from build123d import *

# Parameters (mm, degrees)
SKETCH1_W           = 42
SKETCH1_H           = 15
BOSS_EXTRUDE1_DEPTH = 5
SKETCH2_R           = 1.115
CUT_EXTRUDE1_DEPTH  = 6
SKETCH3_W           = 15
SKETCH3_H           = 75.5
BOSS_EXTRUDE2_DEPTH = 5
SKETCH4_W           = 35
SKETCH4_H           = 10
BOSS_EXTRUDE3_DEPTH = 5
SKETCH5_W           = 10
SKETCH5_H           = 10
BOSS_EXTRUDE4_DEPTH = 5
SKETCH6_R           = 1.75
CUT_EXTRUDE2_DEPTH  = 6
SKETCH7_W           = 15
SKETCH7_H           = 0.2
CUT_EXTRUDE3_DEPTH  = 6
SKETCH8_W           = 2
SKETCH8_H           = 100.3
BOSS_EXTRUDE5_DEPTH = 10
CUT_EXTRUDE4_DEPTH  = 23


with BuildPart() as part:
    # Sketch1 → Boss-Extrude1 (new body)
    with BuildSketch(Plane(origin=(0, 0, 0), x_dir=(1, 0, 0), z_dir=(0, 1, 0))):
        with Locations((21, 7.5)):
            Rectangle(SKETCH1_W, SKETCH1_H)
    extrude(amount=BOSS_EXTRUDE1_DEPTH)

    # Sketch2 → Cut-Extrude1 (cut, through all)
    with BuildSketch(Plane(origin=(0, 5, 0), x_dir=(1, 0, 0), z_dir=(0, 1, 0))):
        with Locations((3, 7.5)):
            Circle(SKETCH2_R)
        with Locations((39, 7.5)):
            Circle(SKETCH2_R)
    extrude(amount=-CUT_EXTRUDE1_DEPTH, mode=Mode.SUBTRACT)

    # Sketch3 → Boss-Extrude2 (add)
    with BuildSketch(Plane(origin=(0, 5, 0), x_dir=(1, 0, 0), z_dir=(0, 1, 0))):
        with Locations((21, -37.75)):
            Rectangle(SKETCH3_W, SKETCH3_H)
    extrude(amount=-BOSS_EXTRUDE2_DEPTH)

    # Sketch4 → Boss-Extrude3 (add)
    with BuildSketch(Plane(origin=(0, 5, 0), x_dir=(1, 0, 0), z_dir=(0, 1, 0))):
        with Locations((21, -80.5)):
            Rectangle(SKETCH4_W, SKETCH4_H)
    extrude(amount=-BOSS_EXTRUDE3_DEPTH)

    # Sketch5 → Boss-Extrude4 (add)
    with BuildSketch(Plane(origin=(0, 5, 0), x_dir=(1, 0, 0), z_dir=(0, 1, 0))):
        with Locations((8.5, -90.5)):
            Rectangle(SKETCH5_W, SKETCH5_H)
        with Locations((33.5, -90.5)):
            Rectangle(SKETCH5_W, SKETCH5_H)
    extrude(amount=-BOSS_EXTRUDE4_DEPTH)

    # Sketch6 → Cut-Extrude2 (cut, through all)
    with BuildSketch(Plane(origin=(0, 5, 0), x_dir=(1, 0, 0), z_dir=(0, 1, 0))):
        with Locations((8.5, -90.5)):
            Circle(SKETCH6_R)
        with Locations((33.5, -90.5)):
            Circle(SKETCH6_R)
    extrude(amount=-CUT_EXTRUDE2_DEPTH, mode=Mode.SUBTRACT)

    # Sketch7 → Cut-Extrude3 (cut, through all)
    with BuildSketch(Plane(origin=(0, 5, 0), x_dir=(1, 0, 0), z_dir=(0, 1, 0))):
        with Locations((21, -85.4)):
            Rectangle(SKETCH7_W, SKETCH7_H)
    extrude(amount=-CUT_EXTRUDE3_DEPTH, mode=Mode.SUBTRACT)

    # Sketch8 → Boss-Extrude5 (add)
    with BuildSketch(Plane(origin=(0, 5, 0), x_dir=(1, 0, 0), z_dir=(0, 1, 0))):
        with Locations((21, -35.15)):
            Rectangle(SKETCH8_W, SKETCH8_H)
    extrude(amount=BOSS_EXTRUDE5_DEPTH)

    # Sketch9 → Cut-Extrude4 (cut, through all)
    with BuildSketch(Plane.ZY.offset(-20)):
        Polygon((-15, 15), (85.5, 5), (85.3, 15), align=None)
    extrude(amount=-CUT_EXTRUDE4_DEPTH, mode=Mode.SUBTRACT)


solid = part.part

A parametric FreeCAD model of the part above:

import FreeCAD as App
import Part
import Sketcher
from FreeCAD import Vector
Q = App.Units.Quantity


def add_polygon(sketch, points):
    """Adds a closed chain of lines whose ends are joined by coincident constraints."""
    first, n = sketch.GeometryCount, len(points)
    for a, b in zip(points, points[1:] + points[:1]):
        sketch.addGeometry(Part.LineSegment(App.Vector(*a, 0), App.Vector(*b, 0)), False)
    for i in range(n):
        sketch.addConstraint(Sketcher.Constraint("Coincident", first + i, 2, first + (i + 1) % n, 1))

doc = App.newDocument("Part")
params = doc.addObject("Spreadsheet::Sheet", "Params")
for row, (alias, value) in enumerate([
    ("sketch1_width", "42 mm"),
    ("sketch1_height", "15 mm"),
    ("pad1_length", "5 mm"),
    ("sketch2_diameter", "2.23 mm"),
    ("sketch3_width", "15 mm"),
    ("sketch3_height", "75.5 mm"),
    ("pad2_length", "5 mm"),
    ("sketch4_width", "35 mm"),
    ("sketch4_height", "10 mm"),
    ("pad3_length", "5 mm"),
    ("sketch5_width", "10 mm"),
    ("pad4_length", "5 mm"),
    ("sketch6_diameter", "3.5 mm"),
    ("sketch7_width", "15 mm"),
    ("sketch7_height", "0.2 mm"),
    ("sketch8_width", "2 mm"),
    ("sketch8_height", "100.3 mm"),
    ("pad5_length", "10 mm"),
    ("sketch9_height", "100.3 mm"),
], start=1):
    params.set(f"A{row}", alias)
    params.set(f"B{row}", "=" + value)
    params.setAlias(f"B{row}", alias)

body = doc.addObject("PartDesign::Body", "Body")

sketch1 = doc.addObject("Sketcher::SketchObject", "Sketch")
body.addObject(sketch1)
sketch1.AttachmentSupport = (doc.XZ_Plane, [""])
sketch1.MapMode = "FlatFace"
add_polygon(sketch1, [(0, -15), (0, 0), (42, 0), (42, -15)])
sketch1.addConstraint([
    Sketcher.Constraint("Vertical", 0),
    Sketcher.Constraint("Horizontal", 1),
    Sketcher.Constraint("Vertical", 2),
    Sketcher.Constraint("Horizontal", 3),
    Sketcher.Constraint("Coincident", 0, 2, -1, 1),
    Sketcher.Constraint("DistanceX", 1, 1, 1, 2, Q("42 mm")),
    Sketcher.Constraint("DistanceY", 0, 1, 0, 2, Q("15 mm")),
])
sketch1.setExpression("Constraints[9]", "Params.sketch1_width")
sketch1.setExpression("Constraints[10]", "Params.sketch1_height")
pad1 = doc.addObject("PartDesign::Pad", "Pad")
body.addObject(pad1)
pad1.Profile = sketch1
pad1.setExpression("Length", "Params.pad1_length")
pad1.Reversed = True

sketch2 = doc.addObject("Sketcher::SketchObject", "Sketch001")
body.addObject(sketch2)
sketch2.AttachmentSupport = (doc.XZ_Plane, [""])
sketch2.MapMode = "FlatFace"
sketch2.AttachmentOffset = App.Placement(Vector(0, 0, -5), App.Rotation())
sketch2.addGeometry([
    Part.Circle(Vector(3, -7.5, 0), Vector(0, 0, 1), 1.1),
    Part.Circle(Vector(39, -7.5, 0), Vector(0, 0, 1), 1.1),
], False)
sketch2.addConstraint([
    Sketcher.Constraint("Equal", 0, 1),
    Sketcher.Constraint("Horizontal", 0, 3, 1, 3),
    Sketcher.Constraint("Diameter", 0, Q("2.23 mm")),
    Sketcher.Constraint("DistanceX", -1, 1, 0, 3, Q("3 mm")),
    Sketcher.Constraint("DistanceX", -1, 1, 1, 3, Q("39 mm")),
    Sketcher.Constraint("DistanceY", 0, 3, -1, 1, Q("7.5 mm")),
])
sketch2.setExpression("Constraints[2]", "Params.sketch2_diameter")
pocket1 = doc.addObject("PartDesign::Pocket", "Pocket")
body.addObject(pocket1)
pocket1.Profile = sketch2
pocket1.Type = "ThroughAll"
pocket1.Reversed = True

sketch3 = doc.addObject("Sketcher::SketchObject", "Sketch002")
body.addObject(sketch3)
sketch3.AttachmentSupport = (doc.XZ_Plane, [""])
sketch3.MapMode = "FlatFace"
sketch3.AttachmentOffset = App.Placement(Vector(0, 0, -5), App.Rotation())
add_polygon(sketch3, [(14, 0), (14, 76), (28, 76), (28, 0)])
sketch3.addConstraint([
    Sketcher.Constraint("Vertical", 0),
    Sketcher.Constraint("Horizontal", 1),
    Sketcher.Constraint("Vertical", 2),
    Sketcher.Constraint("Horizontal", 3),
    Sketcher.Constraint("PointOnObject", 2, 2, -1),
    Sketcher.Constraint("DistanceX", 1, 1, 1, 2, Q("15 mm")),
    Sketcher.Constraint("DistanceY", 0, 1, 0, 2, Q("75.5 mm")),
    Sketcher.Constraint("DistanceX", -1, 1, 0, 2, Q("13.5 mm")),
])
sketch3.setExpression("Constraints[9]", "Params.sketch3_width")
sketch3.setExpression("Constraints[10]", "Params.sketch3_height")
pad2 = doc.addObject("PartDesign::Pad", "Pad001")
body.addObject(pad2)
pad2.Profile = sketch3
pad2.setExpression("Length", "Params.pad2_length")

sketch4 = doc.addObject("Sketcher::SketchObject", "Sketch003")
body.addObject(sketch4)
sketch4.AttachmentSupport = (doc.XZ_Plane, [""])
sketch4.MapMode = "FlatFace"
sketch4.AttachmentOffset = App.Placement(Vector(0, 0, -5), App.Rotation())
add_polygon(sketch4, [(4, 76), (4, 86), (38, 86), (38, 76)])
sketch4.addConstraint([
    Sketcher.Constraint("Vertical", 0),
    Sketcher.Constraint("Horizontal", 1),
    Sketcher.Constraint("Vertical", 2),
    Sketcher.Constraint("Horizontal", 3),
    Sketcher.Constraint("DistanceX", 1, 1, 1, 2, Q("35 mm")),
    Sketcher.Constraint("DistanceY", 0, 1, 0, 2, Q("10 mm")),
    Sketcher.Constraint("DistanceX", -1, 1, 0, 2, Q("3.5 mm")),
    Sketcher.Constraint("DistanceY", -1, 1, 0, 2, Q("85.5 mm")),
])
sketch4.setExpression("Constraints[8]", "Params.sketch4_width")
sketch4.setExpression("Constraints[9]", "Params.sketch4_height")
pad3 = doc.addObject("PartDesign::Pad", "Pad002")
body.addObject(pad3)
pad3.Profile = sketch4
pad3.setExpression("Length", "Params.pad3_length")

sketch5 = doc.addObject("Sketcher::SketchObject", "Sketch004")
body.addObject(sketch5)
sketch5.AttachmentSupport = (doc.XZ_Plane, [""])
sketch5.MapMode = "FlatFace"
sketch5.AttachmentOffset = App.Placement(Vector(0, 0, -5), App.Rotation())
add_polygon(sketch5, [(4, 86), (4, 96), (14, 96), (14, 86)])
add_polygon(sketch5, [(28, 86), (28, 96), (38, 96), (38, 86)])
sketch5.addConstraint([
    Sketcher.Constraint("Vertical", 0),
    Sketcher.Constraint("Horizontal", 1),
    Sketcher.Constraint("Vertical", 2),
    Sketcher.Constraint("Horizontal", 3),
    Sketcher.Constraint("Vertical", 4),
    Sketcher.Constraint("Horizontal", 5),
    Sketcher.Constraint("Vertical", 6),
    Sketcher.Constraint("Horizontal", 7),
    Sketcher.Constraint("Horizontal", 1, 2, 4, 2),
    Sketcher.Constraint("Horizontal", 3, 2, 6, 2),
    Sketcher.Constraint("Equal", 3, 5),
    Sketcher.Constraint("Equal", 7, 0),
    Sketcher.Constraint("DistanceX", 1, 1, 1, 2, Q("10 mm")),
    Sketcher.Constraint("DistanceX", 1, 2, 4, 2, Q("15 mm")),
    Sketcher.Constraint("DistanceX", -1, 1, 0, 2, Q("3.5 mm")),
    Sketcher.Constraint("DistanceY", -1, 1, 0, 2, Q("95.5 mm")),
])
sketch5.setExpression("Constraints[20]", "Params.sketch5_width")
pad4 = doc.addObject("PartDesign::Pad", "Pad003")
body.addObject(pad4)
pad4.Profile = sketch5
pad4.setExpression("Length", "Params.pad4_length")

sketch6 = doc.addObject("Sketcher::SketchObject", "Sketch005")
body.addObject(sketch6)
sketch6.AttachmentSupport = (doc.XZ_Plane, [""])
sketch6.MapMode = "FlatFace"
sketch6.AttachmentOffset = App.Placement(Vector(0, 0, -5), App.Rotation())
sketch6.addGeometry([
    Part.Circle(Vector(8.5, 90.5, 0), Vector(0, 0, 1), 1.8),
    Part.Circle(Vector(33.5, 90.5, 0), Vector(0, 0, 1), 1.8),
], False)
sketch6.addConstraint([
    Sketcher.Constraint("Equal", 0, 1),
    Sketcher.Constraint("Horizontal", 0, 3, 1, 3),
    Sketcher.Constraint("Diameter", 0, Q("3.5 mm")),
    Sketcher.Constraint("DistanceX", 0, 3, 1, 3, Q("25 mm")),
    Sketcher.Constraint("DistanceX", -1, 1, 0, 3, Q("8.5 mm")),
    Sketcher.Constraint("DistanceY", -1, 1, 0, 3, Q("90.5 mm")),
])
sketch6.setExpression("Constraints[2]", "Params.sketch6_diameter")
pocket2 = doc.addObject("PartDesign::Pocket", "Pocket001")
body.addObject(pocket2)
pocket2.Profile = sketch6
pocket2.Type = "ThroughAll"
pocket2.Reversed = True

sketch7 = doc.addObject("Sketcher::SketchObject", "Sketch006")
body.addObject(sketch7)
sketch7.AttachmentSupport = (doc.XZ_Plane, [""])
sketch7.MapMode = "FlatFace"
sketch7.AttachmentOffset = App.Placement(Vector(0, 0, -5), App.Rotation())
add_polygon(sketch7, [(13.5, 85.3), (13.5, 85.5), (28.5, 85.5), (28.5, 85.3)])
sketch7.addConstraint([
    Sketcher.Constraint("Vertical", 0),
    Sketcher.Constraint("Horizontal", 1),
    Sketcher.Constraint("Vertical", 2),
    Sketcher.Constraint("Horizontal", 3),
    Sketcher.Constraint("DistanceX", 1, 1, 1, 2, Q("15 mm")),
    Sketcher.Constraint("DistanceY", 0, 1, 0, 2, Q("0.2 mm")),
    Sketcher.Constraint("DistanceX", -1, 1, 0, 2, Q("13.5 mm")),
    Sketcher.Constraint("DistanceY", -1, 1, 0, 2, Q("85.5 mm")),
])
sketch7.setExpression("Constraints[8]", "Params.sketch7_width")
sketch7.setExpression("Constraints[9]", "Params.sketch7_height")
pocket3 = doc.addObject("PartDesign::Pocket", "Pocket002")
body.addObject(pocket3)
pocket3.Profile = sketch7
pocket3.Type = "ThroughAll"
pocket3.Reversed = True

sketch8 = doc.addObject("Sketcher::SketchObject", "Sketch007")
body.addObject(sketch8)
sketch8.AttachmentSupport = (doc.XZ_Plane, [""])
sketch8.MapMode = "FlatFace"
sketch8.AttachmentOffset = App.Placement(Vector(0, 0, -5), App.Rotation())
add_polygon(sketch8, [(20, -15), (20, 85.3), (22, 85.3), (22, -15)])
sketch8.addConstraint([
    Sketcher.Constraint("Vertical", 0),
    Sketcher.Constraint("Horizontal", 1),
    Sketcher.Constraint("Vertical", 2),
    Sketcher.Constraint("Horizontal", 3),
    Sketcher.Constraint("DistanceX", 1, 1, 1, 2, Q("2 mm")),
    Sketcher.Constraint("DistanceY", 0, 1, 0, 2, Q("100.3 mm")),
    Sketcher.Constraint("DistanceX", -1, 1, 0, 2, Q("20 mm")),
    Sketcher.Constraint("DistanceY", 2, 2, -1, 1, Q("15 mm")),
])
sketch8.setExpression("Constraints[8]", "Params.sketch8_width")
sketch8.setExpression("Constraints[9]", "Params.sketch8_height")
pad5 = doc.addObject("PartDesign::Pad", "Pad004")
body.addObject(pad5)
pad5.Profile = sketch8
pad5.setExpression("Length", "Params.pad5_length")
pad5.Reversed = True

sketch9 = doc.addObject("Sketcher::SketchObject", "Sketch008")
body.addObject(sketch9)
sketch9.AttachmentSupport = (doc.YZ_Plane, [""])
sketch9.MapMode = "FlatFace"
sketch9.AttachmentOffset = App.Placement(Vector(0, 0, 20), App.Rotation())
add_polygon(sketch9, [(15, -15), (5, 86), (15, 85)])
sketch9.addConstraint([
    Sketcher.Constraint("Vertical", 2),
    Sketcher.Constraint("DistanceY", 2, 2, 2, 1, Q("100.3 mm")),
    Sketcher.Constraint("DistanceX", -1, 1, 0, 2, Q("5 mm")),
    Sketcher.Constraint("DistanceX", -1, 1, 1, 2, Q("15 mm")),
    Sketcher.Constraint("DistanceY", 2, 2, -1, 1, Q("15 mm")),
    Sketcher.Constraint("DistanceY", -1, 1, 0, 2, Q("85.5 mm")),
])
sketch9.setExpression("Constraints[4]", "Params.sketch9_height")
pocket4 = doc.addObject("PartDesign::Pocket", "Pocket003")
body.addObject(pocket4)
pocket4.Profile = sketch9
pocket4.Type = "ThroughAll"
pocket4.Reversed = True

doc.recompute()
